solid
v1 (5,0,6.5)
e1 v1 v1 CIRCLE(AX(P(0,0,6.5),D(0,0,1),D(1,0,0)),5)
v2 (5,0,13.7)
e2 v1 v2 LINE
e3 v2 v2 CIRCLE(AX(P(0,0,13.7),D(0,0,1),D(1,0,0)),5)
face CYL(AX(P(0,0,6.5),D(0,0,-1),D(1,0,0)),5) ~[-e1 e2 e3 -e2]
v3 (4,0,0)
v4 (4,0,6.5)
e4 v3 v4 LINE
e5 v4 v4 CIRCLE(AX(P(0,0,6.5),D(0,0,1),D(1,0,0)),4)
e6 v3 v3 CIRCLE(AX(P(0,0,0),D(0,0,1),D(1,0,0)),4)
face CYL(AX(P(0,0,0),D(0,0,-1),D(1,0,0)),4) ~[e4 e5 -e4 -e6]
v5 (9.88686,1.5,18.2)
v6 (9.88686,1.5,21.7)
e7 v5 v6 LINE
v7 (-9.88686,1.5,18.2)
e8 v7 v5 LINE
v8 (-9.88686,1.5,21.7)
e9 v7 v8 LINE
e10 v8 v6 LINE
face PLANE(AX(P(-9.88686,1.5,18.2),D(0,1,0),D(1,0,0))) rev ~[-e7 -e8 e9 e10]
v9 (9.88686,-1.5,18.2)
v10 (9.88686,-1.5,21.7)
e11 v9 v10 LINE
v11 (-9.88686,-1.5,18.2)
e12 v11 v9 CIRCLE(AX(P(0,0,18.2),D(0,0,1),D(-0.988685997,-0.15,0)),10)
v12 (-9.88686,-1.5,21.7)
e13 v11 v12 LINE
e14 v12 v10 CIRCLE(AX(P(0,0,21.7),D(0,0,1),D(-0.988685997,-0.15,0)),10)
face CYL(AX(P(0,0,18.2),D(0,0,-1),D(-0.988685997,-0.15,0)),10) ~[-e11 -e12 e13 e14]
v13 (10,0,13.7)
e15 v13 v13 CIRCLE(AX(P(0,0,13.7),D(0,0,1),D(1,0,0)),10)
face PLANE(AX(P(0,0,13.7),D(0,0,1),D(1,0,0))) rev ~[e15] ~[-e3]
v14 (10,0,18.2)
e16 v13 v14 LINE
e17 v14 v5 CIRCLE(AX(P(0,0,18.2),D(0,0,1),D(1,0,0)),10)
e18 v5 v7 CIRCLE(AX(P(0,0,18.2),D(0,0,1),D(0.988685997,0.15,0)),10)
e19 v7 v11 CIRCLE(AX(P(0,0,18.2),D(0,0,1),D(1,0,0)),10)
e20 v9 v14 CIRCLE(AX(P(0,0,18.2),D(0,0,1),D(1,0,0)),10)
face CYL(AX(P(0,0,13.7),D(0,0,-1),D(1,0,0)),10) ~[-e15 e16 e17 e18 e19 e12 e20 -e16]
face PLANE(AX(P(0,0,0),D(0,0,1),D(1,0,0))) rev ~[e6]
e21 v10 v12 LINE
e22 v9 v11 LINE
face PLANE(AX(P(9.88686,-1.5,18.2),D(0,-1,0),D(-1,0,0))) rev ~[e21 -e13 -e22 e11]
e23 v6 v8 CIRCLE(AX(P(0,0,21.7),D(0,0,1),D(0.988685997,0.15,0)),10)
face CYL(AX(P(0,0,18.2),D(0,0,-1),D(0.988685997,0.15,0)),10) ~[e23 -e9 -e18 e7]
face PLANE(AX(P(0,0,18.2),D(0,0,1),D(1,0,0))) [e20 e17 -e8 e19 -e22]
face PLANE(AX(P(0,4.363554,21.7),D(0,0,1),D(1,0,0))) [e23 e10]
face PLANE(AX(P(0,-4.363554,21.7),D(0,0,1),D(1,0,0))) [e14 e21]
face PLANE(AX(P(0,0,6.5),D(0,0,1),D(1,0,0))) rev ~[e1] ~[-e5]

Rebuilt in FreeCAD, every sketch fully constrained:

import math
import FreeCAD as App
import Part
import Sketcher

V = App.Vector
Q = App.Units.Quantity

doc = App.newDocument("Part")
params = doc.addObject("Spreadsheet::Sheet", "Params")
for row, (alias, value) in enumerate([
    ("sketch1_diameter", "8 mm"),
    ("pad1_length", "6.5 mm"),
    ("sketch2_diameter", "10 mm"),
    ("pad2_length", "7.2 mm"),
    ("sketch3_diameter", "20 mm"),
    ("pad3_length", "4.5 mm"),
    ("sketch4_radius", "10 mm"),
    ("pad4_length", "3.5 mm"),
], start=1):
    params.set(f"A{row}", alias)
    params.set(f"B{row}", "=" + value)
    params.setAlias(f"B{row}", alias)

body = doc.addObject("PartDesign::Body", "Body")

# Sketch on XY plane
sketch1 = doc.addObject("Sketcher::SketchObject", "Sketch")
body.addObject(sketch1)
sketch1.AttachmentSupport = (doc.XY_Plane, [""])
sketch1.MapMode = "FlatFace"
sketch1.addGeometry(Part.Circle(V(0, 0, 0), V(0, 0, 1), 4), False)
sketch1.addConstraint([
    Sketcher.Constraint("Coincident", 0, 3, -1, 1),
    Sketcher.Constraint("Diameter", 0, Q("8 mm")),
])
sketch1.setExpression("Constraints[1]", "Params.sketch1_diameter")
pad1 = doc.addObject("PartDesign::Pad", "Pad")
body.addObject(pad1)
pad1.Profile = sketch1
pad1.setExpression("Length", "Params.pad1_length")

# Sketch on XY plane
sketch2 = doc.addObject("Sketcher::SketchObject", "Sketch001")
body.addObject(sketch2)
sketch2.AttachmentSupport = (doc.XY_Plane, [""])
sketch2.MapMode = "FlatFace"
sketch2.AttachmentOffset = App.Placement(V(0, 0, 6.5), App.Rotation())
sketch2.addGeometry(Part.Circle(V(0, 0, 0), V(0, 0, 1), 5), False)
sketch2.addConstraint([
    Sketcher.Constraint("Coincident", 0, 3, -1, 1),
    Sketcher.Constraint("Diameter", 0, Q("10 mm")),
])
sketch2.setExpression("Constraints[1]", "Params.sketch2_diameter")
pad2 = doc.addObject("PartDesign::Pad", "Pad001")
body.addObject(pad2)
pad2.Profile = sketch2
pad2.setExpression("Length", "Params.pad2_length")

# Sketch on XY plane
sketch3 = doc.addObject("Sketcher::SketchObject", "Sketch002")
body.addObject(sketch3)
sketch3.AttachmentSupport = (doc.XY_Plane, [""])
sketch3.MapMode = "FlatFace"
sketch3.AttachmentOffset = App.Placement(V(0, 0, 13.7), App.Rotation())
sketch3.addGeometry(Part.Circle(V(0, 0, 0), V(0, 0, 1), 10), False)
sketch3.addConstraint([
    Sketcher.Constraint("Coincident", 0, 3, -1, 1),
    Sketcher.Constraint("Diameter", 0, Q("20 mm")),
])
sketch3.setExpression("Constraints[1]", "Params.sketch3_diameter")
pad3 = doc.addObject("PartDesign::Pad", "Pad002")
body.addObject(pad3)
pad3.Profile = sketch3
pad3.setExpression("Length", "Params.pad3_length")

# Sketch on XY plane
sketch4 = doc.addObject("Sketcher::SketchObject", "Sketch003")
body.addObject(sketch4)
sketch4.AttachmentSupport = (doc.XY_Plane, [""])
sketch4.MapMode = "FlatFace"
sketch4.AttachmentOffset = App.Placement(V(0, 0, 18.2), App.Rotation())
sketch4.addGeometry([
    Part.ArcOfCircle(Part.Circle(V(0, 0, 0), V(0, 0, 1), 10), math.radians(-171.373073), math.radians(-8.626927)),
    Part.LineSegment(V(9.88686, -1.5, 0), V(-9.88686, -1.5, 0)),
    Part.LineSegment(V(-9.88686, 1.5, 0), V(9.88686, 1.5, 0)),
    Part.ArcOfCircle(Part.Circle(V(0, 0, 0), V(0, 0, 1), 10), math.radians(8.626927), math.radians(171.373073)),
], False)
sketch4.addConstraint([
    Sketcher.Constraint("Coincident", 0, 1, 1, 2),
    Sketcher.Constraint("Coincident", 1, 1, 0, 2),
    Sketcher.Constraint("Coincident", 2, 1, 3, 2),
    Sketcher.Constraint("Coincident", 3, 1, 2, 2),
    Sketcher.Constraint("Horizontal", 1),
    Sketcher.Constraint("Horizontal", 2),
    Sketcher.Constraint("Coincident", 0, 3, -1, 1),
    Sketcher.Constraint("Coincident", 3, 3, -1, 1),
    Sketcher.Constraint("Equal", 0, 3),
    Sketcher.Constraint("Vertical", 0, 1, 2, 1),
    Sketcher.Constraint("Radius", 0, Q("10 mm")),
    Sketcher.Constraint("DistanceY", 0, 1, 2, 1, Q("3 mm")),
])
sketch4.setExpression("Constraints[10]", "Params.sketch4_radius")
pad4 = doc.addObject("PartDesign::Pad", "Pad003")
body.addObject(pad4)
pad4.Profile = sketch4
pad4.setExpression("Length", "Params.pad4_length")

doc.recompute()
